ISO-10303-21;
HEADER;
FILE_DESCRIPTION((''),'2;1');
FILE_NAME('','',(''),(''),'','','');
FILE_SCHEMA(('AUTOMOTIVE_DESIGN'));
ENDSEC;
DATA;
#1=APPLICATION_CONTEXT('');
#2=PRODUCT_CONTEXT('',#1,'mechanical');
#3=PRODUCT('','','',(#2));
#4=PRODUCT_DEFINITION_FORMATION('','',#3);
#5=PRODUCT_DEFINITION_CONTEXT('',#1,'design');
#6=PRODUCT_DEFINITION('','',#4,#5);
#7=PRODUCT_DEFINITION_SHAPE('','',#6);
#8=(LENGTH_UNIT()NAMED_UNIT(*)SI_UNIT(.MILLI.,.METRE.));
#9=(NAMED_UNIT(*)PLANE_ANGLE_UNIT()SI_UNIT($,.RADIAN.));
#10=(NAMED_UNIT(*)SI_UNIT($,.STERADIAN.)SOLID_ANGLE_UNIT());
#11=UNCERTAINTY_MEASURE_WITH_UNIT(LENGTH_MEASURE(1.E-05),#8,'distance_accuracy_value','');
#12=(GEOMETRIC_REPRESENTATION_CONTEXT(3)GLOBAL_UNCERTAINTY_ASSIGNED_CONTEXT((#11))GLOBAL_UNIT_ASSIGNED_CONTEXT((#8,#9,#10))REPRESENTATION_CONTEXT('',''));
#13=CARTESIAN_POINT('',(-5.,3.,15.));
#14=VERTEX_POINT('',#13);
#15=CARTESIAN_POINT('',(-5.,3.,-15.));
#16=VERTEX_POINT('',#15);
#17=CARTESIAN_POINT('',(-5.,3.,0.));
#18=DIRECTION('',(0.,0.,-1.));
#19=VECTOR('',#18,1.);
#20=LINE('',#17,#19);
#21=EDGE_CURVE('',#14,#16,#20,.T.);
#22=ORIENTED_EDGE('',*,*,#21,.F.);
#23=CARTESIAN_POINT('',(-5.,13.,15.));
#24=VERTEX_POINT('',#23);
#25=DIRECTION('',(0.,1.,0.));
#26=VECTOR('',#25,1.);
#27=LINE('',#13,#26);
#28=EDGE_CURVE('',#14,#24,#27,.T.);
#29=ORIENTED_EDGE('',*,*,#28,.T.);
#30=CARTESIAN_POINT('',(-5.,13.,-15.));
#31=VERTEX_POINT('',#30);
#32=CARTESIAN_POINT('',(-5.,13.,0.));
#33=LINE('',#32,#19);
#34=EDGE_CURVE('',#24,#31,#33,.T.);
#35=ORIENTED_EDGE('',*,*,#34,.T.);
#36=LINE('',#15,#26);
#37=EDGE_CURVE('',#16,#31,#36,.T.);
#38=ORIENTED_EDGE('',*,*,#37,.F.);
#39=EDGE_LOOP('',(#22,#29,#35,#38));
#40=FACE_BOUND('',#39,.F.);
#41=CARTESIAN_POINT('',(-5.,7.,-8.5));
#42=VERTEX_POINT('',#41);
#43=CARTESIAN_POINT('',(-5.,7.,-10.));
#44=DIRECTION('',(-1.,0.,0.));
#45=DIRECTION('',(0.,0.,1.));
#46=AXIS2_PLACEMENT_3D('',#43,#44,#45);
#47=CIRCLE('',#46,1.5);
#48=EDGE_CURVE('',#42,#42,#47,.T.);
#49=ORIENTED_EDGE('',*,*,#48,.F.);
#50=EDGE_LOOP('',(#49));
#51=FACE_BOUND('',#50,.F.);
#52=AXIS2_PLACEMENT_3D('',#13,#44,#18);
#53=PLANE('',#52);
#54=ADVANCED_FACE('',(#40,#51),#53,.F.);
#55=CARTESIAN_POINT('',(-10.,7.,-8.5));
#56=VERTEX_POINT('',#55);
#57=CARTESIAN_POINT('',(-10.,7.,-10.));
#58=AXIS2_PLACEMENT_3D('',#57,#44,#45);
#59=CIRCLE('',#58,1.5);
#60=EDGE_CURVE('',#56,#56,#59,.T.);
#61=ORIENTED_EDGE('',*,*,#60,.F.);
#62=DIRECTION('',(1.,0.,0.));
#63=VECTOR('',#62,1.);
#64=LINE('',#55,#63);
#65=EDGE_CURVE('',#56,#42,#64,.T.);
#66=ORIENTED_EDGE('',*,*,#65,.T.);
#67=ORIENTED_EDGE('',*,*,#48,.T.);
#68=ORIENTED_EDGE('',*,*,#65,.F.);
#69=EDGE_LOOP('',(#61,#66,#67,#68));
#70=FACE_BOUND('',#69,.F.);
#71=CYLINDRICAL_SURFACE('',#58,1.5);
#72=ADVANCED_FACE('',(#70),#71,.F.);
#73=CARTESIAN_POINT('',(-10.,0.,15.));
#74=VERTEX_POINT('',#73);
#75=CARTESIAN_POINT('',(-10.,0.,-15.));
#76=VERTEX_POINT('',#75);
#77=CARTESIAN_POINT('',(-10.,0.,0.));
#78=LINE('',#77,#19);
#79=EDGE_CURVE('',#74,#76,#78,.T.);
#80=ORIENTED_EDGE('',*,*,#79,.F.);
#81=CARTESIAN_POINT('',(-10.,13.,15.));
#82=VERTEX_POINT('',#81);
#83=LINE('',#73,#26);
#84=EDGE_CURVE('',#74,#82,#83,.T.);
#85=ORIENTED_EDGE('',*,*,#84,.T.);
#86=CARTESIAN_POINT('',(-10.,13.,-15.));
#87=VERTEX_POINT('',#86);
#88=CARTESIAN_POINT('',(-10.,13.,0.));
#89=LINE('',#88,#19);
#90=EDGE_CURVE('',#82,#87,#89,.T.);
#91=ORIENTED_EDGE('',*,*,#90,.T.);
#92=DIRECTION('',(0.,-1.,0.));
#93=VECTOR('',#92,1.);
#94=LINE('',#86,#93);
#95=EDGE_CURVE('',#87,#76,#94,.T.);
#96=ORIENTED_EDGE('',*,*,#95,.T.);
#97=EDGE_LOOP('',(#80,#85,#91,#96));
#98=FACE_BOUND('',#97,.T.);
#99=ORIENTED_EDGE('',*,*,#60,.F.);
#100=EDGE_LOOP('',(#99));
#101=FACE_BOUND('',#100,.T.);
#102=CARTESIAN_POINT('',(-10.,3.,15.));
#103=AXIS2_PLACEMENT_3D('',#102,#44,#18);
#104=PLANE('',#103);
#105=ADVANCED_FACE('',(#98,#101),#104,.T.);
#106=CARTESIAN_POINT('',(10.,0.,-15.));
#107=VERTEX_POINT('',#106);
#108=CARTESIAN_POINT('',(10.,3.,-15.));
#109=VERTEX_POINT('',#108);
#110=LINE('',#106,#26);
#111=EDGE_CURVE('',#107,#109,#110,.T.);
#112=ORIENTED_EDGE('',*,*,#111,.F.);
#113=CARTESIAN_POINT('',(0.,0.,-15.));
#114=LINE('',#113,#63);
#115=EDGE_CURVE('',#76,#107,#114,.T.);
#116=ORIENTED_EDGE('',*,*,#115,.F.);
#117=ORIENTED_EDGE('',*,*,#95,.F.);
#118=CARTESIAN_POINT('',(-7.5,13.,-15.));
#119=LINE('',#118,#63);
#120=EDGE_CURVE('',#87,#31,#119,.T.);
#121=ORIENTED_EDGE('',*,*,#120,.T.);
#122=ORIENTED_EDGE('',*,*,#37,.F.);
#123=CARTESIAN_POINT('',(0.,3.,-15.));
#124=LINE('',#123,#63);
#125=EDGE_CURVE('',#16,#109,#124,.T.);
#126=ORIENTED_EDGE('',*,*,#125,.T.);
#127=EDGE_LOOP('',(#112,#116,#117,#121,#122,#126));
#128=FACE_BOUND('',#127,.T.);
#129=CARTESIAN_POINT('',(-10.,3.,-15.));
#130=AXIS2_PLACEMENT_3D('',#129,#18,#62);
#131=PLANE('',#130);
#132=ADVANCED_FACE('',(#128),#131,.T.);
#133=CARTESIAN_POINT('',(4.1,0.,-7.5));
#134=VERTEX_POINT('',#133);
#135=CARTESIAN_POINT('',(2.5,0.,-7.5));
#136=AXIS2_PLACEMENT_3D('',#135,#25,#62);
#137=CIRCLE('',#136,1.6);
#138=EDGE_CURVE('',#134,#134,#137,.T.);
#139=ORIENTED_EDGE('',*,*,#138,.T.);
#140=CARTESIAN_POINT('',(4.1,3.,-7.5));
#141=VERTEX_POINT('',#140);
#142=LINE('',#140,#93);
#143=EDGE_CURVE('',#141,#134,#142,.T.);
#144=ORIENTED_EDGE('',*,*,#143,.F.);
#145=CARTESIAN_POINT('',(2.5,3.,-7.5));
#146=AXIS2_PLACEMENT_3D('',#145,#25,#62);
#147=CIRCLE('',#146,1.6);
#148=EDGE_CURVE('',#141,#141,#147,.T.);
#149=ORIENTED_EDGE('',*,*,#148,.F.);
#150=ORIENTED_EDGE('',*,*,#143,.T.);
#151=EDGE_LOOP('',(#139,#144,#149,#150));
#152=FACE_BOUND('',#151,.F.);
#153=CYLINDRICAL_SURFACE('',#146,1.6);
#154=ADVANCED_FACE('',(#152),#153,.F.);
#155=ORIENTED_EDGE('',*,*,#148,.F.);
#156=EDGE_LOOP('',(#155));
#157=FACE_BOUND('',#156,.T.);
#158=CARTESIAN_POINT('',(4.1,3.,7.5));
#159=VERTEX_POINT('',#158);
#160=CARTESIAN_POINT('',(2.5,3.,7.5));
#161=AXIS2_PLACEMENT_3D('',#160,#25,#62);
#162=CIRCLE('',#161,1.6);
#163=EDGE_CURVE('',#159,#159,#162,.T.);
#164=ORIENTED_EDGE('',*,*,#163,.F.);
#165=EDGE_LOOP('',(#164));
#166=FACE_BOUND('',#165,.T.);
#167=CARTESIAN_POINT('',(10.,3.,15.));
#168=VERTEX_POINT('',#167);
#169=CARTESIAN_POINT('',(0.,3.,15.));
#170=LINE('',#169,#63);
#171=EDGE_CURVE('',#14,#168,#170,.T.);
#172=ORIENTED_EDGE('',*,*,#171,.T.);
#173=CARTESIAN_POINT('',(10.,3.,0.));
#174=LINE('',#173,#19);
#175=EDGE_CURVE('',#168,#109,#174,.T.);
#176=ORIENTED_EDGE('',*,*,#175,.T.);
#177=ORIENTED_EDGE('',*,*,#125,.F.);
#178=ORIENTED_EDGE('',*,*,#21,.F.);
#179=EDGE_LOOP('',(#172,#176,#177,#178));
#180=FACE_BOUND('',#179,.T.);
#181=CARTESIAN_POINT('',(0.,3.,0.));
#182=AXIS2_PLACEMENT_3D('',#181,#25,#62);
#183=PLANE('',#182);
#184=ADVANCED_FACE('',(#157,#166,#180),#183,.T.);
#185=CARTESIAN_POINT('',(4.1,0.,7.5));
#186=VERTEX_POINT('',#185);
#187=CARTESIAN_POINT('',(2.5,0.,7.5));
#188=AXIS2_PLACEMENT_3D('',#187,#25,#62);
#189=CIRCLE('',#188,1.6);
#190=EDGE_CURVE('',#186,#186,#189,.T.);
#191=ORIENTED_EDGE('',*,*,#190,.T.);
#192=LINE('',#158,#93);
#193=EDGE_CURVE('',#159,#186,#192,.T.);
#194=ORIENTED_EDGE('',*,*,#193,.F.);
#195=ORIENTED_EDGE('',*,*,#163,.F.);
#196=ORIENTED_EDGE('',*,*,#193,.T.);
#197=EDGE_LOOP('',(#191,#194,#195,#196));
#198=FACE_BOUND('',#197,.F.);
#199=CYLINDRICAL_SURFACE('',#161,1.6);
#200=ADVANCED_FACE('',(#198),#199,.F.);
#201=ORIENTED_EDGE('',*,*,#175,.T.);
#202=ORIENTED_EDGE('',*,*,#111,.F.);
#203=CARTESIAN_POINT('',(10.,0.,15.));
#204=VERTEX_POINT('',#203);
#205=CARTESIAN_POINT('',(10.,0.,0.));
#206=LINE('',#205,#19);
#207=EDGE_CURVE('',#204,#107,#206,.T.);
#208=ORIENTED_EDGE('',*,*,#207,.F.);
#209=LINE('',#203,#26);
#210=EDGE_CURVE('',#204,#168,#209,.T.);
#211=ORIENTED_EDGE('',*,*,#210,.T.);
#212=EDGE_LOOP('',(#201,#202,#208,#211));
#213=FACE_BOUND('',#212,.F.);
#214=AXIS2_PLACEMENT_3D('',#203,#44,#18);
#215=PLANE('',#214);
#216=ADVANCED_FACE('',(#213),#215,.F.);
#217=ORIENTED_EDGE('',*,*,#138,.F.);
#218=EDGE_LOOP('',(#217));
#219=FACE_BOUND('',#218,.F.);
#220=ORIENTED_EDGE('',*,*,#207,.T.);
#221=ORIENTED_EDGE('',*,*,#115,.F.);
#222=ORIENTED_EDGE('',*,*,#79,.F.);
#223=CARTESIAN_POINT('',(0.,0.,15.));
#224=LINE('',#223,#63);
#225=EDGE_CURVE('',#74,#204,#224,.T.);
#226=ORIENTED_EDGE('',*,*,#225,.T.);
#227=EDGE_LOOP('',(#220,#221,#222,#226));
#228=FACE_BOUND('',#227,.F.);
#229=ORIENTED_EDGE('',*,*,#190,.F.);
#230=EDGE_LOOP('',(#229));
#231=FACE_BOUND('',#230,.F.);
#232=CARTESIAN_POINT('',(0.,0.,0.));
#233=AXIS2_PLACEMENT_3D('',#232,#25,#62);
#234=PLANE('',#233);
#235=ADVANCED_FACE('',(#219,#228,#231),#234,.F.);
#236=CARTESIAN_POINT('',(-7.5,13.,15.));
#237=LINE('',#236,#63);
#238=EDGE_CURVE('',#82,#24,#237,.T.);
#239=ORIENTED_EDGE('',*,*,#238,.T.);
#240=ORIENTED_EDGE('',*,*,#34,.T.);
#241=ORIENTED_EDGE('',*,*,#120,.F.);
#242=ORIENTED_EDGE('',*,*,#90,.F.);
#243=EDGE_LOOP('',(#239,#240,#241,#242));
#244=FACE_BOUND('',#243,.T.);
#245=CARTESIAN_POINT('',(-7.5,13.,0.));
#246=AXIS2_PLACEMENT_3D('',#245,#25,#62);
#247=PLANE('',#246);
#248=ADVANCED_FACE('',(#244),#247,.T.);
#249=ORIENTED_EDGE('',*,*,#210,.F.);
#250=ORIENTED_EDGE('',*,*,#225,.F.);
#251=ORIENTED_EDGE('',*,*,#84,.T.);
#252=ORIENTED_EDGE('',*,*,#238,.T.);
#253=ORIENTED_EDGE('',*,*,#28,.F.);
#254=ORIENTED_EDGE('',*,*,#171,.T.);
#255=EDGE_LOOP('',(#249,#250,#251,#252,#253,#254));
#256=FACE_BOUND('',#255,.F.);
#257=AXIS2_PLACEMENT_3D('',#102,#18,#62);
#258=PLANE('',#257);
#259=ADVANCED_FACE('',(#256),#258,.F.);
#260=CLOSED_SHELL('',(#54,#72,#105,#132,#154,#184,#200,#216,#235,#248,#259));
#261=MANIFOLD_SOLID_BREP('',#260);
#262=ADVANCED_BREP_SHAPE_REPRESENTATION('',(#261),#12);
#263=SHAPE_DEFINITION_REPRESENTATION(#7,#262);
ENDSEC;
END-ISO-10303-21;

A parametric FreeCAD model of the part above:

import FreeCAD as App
import Part
import Sketcher
from FreeCAD import Vector
Q = App.Units.Quantity


def add_polygon(sketch, points):
    """Adds a closed chain of lines whose ends are joined by coincident constraints."""
    first, n = sketch.GeometryCount, len(points)
    for a, b in zip(points, points[1:] + points[:1]):
        sketch.addGeometry(Part.LineSegment(App.Vector(*a, 0), App.Vector(*b, 0)), False)
    for i in range(n):
        sketch.addConstraint(Sketcher.Constraint("Coincident", first + i, 2, first + (i + 1) % n, 1))

doc = App.newDocument("Part")
body = doc.addObject("PartDesign::Body", "Body")

# Sketch on XZ plane
sketch1 = body.newObject("Sketcher::SketchObject", "Sketch")
sketch1.AttachmentSupport = (doc.getObject("XZ_Plane"), [""])
sketch1.MapMode = "FlatFace"
add_polygon(sketch1, [(-10, -15), (-10, 15), (10, 15), (10, -15)])  # lines 0-3
sketch1.addConstraint([
    Sketcher.Constraint("Vertical", 0),
    Sketcher.Constraint("Horizontal", 1),
    Sketcher.Constraint("Vertical", 2),
    Sketcher.Constraint("Horizontal", 3),
    Sketcher.Constraint("Symmetric", 0, 2, 2, 2, -1, 1),
    Sketcher.Constraint("DistanceX", 1, 1, 1, 2, Q("20 mm")),
    Sketcher.Constraint("DistanceY", 0, 1, 0, 2, Q("30 mm")),
])
pad1 = body.newObject("PartDesign::Pad", "Pad")
pad1.Profile = sketch1
pad1.Length = 3
pad1.Reversed = True

# Sketch on XZ plane
sketch2 = body.newObject("Sketcher::SketchObject", "Sketch001")
sketch2.AttachmentSupport = (doc.getObject("XZ_Plane"), [""])
sketch2.MapMode = "FlatFace"
sketch2.AttachmentOffset = App.Placement(Vector(0, 0, -3), App.Rotation())
add_polygon(sketch2, [(-10, -15), (-10, 15), (-5, 15), (-5, -15)])  # lines 0-3
sketch2.addConstraint([
    Sketcher.Constraint("Vertical", 0),
    Sketcher.Constraint("Horizontal", 1),
    Sketcher.Constraint("Vertical", 2),
    Sketcher.Constraint("Horizontal", 3),
    Sketcher.Constraint("DistanceX", 1, 1, 1, 2, Q("5 mm")),
    Sketcher.Constraint("DistanceY", 0, 1, 0, 2, Q("30 mm")),
    Sketcher.Constraint("DistanceX", 0, 2, -1, 1, Q("10 mm")),
    Sketcher.Constraint("DistanceY", -1, 1, 0, 2, Q("15 mm")),
])
pad2 = body.newObject("PartDesign::Pad", "Pad001")
pad2.Profile = sketch2
pad2.Length = 10
pad2.Reversed = True

# Sketch on YZ plane
sketch3 = body.newObject("Sketcher::SketchObject", "Sketch002")
sketch3.AttachmentSupport = (doc.getObject("YZ_Plane"), [""])
sketch3.MapMode = "FlatFace"
sketch3.AttachmentOffset = App.Placement(Vector(0, 0, -10), App.Rotation())
sketch3.addGeometry(Part.Circle(Vector(7, -10, 0), Vector(0, 0, 1), 1.5), False)
sketch3.addConstraint([
    Sketcher.Constraint("Diameter", 0, Q("3 mm")),
    Sketcher.Constraint("DistanceX", -1, 1, 0, 3, Q("7 mm")),
    Sketcher.Constraint("DistanceY", 0, 3, -1, 1, Q("10 mm")),
])
pocket1 = body.newObject("PartDesign::Pocket", "Pocket")
pocket1.Profile = sketch3
pocket1.Length = 10
pocket1.Reversed = True

# Sketch on XZ plane
sketch4 = body.newObject("Sketcher::SketchObject", "Sketch003")
sketch4.AttachmentSupport = (doc.getObject("XZ_Plane"), [""])
sketch4.MapMode = "FlatFace"
sketch4.AttachmentOffset = App.Placement(Vector(0, 0, -3), App.Rotation())
sketch4.addGeometry([
    Part.Circle(Vector(2.5, 7.5, 0), Vector(0, 0, 1), 1.6),
    Part.Circle(Vector(2.5, -7.5, 0), Vector(0, 0, 1), 1.6),
], False)
sketch4.addConstraint([
    Sketcher.Constraint("Equal", 0, 1),
    Sketcher.Constraint("Symmetric", 0, 3, 1, 3, -1),
    Sketcher.Constraint("Diameter", 0, Q("3.2 mm")),
    Sketcher.Constraint("DistanceY", 1, 3, 0, 3, Q("15 mm")),
    Sketcher.Constraint("DistanceX", -1, 1, 0, 3, Q("2.5 mm")),
])
pocket2 = body.newObject("PartDesign::Pocket", "Pocket001")
pocket2.Profile = sketch4
pocket2.Type = "ThroughAll"
pocket2.Reversed = True

doc.recompute()
